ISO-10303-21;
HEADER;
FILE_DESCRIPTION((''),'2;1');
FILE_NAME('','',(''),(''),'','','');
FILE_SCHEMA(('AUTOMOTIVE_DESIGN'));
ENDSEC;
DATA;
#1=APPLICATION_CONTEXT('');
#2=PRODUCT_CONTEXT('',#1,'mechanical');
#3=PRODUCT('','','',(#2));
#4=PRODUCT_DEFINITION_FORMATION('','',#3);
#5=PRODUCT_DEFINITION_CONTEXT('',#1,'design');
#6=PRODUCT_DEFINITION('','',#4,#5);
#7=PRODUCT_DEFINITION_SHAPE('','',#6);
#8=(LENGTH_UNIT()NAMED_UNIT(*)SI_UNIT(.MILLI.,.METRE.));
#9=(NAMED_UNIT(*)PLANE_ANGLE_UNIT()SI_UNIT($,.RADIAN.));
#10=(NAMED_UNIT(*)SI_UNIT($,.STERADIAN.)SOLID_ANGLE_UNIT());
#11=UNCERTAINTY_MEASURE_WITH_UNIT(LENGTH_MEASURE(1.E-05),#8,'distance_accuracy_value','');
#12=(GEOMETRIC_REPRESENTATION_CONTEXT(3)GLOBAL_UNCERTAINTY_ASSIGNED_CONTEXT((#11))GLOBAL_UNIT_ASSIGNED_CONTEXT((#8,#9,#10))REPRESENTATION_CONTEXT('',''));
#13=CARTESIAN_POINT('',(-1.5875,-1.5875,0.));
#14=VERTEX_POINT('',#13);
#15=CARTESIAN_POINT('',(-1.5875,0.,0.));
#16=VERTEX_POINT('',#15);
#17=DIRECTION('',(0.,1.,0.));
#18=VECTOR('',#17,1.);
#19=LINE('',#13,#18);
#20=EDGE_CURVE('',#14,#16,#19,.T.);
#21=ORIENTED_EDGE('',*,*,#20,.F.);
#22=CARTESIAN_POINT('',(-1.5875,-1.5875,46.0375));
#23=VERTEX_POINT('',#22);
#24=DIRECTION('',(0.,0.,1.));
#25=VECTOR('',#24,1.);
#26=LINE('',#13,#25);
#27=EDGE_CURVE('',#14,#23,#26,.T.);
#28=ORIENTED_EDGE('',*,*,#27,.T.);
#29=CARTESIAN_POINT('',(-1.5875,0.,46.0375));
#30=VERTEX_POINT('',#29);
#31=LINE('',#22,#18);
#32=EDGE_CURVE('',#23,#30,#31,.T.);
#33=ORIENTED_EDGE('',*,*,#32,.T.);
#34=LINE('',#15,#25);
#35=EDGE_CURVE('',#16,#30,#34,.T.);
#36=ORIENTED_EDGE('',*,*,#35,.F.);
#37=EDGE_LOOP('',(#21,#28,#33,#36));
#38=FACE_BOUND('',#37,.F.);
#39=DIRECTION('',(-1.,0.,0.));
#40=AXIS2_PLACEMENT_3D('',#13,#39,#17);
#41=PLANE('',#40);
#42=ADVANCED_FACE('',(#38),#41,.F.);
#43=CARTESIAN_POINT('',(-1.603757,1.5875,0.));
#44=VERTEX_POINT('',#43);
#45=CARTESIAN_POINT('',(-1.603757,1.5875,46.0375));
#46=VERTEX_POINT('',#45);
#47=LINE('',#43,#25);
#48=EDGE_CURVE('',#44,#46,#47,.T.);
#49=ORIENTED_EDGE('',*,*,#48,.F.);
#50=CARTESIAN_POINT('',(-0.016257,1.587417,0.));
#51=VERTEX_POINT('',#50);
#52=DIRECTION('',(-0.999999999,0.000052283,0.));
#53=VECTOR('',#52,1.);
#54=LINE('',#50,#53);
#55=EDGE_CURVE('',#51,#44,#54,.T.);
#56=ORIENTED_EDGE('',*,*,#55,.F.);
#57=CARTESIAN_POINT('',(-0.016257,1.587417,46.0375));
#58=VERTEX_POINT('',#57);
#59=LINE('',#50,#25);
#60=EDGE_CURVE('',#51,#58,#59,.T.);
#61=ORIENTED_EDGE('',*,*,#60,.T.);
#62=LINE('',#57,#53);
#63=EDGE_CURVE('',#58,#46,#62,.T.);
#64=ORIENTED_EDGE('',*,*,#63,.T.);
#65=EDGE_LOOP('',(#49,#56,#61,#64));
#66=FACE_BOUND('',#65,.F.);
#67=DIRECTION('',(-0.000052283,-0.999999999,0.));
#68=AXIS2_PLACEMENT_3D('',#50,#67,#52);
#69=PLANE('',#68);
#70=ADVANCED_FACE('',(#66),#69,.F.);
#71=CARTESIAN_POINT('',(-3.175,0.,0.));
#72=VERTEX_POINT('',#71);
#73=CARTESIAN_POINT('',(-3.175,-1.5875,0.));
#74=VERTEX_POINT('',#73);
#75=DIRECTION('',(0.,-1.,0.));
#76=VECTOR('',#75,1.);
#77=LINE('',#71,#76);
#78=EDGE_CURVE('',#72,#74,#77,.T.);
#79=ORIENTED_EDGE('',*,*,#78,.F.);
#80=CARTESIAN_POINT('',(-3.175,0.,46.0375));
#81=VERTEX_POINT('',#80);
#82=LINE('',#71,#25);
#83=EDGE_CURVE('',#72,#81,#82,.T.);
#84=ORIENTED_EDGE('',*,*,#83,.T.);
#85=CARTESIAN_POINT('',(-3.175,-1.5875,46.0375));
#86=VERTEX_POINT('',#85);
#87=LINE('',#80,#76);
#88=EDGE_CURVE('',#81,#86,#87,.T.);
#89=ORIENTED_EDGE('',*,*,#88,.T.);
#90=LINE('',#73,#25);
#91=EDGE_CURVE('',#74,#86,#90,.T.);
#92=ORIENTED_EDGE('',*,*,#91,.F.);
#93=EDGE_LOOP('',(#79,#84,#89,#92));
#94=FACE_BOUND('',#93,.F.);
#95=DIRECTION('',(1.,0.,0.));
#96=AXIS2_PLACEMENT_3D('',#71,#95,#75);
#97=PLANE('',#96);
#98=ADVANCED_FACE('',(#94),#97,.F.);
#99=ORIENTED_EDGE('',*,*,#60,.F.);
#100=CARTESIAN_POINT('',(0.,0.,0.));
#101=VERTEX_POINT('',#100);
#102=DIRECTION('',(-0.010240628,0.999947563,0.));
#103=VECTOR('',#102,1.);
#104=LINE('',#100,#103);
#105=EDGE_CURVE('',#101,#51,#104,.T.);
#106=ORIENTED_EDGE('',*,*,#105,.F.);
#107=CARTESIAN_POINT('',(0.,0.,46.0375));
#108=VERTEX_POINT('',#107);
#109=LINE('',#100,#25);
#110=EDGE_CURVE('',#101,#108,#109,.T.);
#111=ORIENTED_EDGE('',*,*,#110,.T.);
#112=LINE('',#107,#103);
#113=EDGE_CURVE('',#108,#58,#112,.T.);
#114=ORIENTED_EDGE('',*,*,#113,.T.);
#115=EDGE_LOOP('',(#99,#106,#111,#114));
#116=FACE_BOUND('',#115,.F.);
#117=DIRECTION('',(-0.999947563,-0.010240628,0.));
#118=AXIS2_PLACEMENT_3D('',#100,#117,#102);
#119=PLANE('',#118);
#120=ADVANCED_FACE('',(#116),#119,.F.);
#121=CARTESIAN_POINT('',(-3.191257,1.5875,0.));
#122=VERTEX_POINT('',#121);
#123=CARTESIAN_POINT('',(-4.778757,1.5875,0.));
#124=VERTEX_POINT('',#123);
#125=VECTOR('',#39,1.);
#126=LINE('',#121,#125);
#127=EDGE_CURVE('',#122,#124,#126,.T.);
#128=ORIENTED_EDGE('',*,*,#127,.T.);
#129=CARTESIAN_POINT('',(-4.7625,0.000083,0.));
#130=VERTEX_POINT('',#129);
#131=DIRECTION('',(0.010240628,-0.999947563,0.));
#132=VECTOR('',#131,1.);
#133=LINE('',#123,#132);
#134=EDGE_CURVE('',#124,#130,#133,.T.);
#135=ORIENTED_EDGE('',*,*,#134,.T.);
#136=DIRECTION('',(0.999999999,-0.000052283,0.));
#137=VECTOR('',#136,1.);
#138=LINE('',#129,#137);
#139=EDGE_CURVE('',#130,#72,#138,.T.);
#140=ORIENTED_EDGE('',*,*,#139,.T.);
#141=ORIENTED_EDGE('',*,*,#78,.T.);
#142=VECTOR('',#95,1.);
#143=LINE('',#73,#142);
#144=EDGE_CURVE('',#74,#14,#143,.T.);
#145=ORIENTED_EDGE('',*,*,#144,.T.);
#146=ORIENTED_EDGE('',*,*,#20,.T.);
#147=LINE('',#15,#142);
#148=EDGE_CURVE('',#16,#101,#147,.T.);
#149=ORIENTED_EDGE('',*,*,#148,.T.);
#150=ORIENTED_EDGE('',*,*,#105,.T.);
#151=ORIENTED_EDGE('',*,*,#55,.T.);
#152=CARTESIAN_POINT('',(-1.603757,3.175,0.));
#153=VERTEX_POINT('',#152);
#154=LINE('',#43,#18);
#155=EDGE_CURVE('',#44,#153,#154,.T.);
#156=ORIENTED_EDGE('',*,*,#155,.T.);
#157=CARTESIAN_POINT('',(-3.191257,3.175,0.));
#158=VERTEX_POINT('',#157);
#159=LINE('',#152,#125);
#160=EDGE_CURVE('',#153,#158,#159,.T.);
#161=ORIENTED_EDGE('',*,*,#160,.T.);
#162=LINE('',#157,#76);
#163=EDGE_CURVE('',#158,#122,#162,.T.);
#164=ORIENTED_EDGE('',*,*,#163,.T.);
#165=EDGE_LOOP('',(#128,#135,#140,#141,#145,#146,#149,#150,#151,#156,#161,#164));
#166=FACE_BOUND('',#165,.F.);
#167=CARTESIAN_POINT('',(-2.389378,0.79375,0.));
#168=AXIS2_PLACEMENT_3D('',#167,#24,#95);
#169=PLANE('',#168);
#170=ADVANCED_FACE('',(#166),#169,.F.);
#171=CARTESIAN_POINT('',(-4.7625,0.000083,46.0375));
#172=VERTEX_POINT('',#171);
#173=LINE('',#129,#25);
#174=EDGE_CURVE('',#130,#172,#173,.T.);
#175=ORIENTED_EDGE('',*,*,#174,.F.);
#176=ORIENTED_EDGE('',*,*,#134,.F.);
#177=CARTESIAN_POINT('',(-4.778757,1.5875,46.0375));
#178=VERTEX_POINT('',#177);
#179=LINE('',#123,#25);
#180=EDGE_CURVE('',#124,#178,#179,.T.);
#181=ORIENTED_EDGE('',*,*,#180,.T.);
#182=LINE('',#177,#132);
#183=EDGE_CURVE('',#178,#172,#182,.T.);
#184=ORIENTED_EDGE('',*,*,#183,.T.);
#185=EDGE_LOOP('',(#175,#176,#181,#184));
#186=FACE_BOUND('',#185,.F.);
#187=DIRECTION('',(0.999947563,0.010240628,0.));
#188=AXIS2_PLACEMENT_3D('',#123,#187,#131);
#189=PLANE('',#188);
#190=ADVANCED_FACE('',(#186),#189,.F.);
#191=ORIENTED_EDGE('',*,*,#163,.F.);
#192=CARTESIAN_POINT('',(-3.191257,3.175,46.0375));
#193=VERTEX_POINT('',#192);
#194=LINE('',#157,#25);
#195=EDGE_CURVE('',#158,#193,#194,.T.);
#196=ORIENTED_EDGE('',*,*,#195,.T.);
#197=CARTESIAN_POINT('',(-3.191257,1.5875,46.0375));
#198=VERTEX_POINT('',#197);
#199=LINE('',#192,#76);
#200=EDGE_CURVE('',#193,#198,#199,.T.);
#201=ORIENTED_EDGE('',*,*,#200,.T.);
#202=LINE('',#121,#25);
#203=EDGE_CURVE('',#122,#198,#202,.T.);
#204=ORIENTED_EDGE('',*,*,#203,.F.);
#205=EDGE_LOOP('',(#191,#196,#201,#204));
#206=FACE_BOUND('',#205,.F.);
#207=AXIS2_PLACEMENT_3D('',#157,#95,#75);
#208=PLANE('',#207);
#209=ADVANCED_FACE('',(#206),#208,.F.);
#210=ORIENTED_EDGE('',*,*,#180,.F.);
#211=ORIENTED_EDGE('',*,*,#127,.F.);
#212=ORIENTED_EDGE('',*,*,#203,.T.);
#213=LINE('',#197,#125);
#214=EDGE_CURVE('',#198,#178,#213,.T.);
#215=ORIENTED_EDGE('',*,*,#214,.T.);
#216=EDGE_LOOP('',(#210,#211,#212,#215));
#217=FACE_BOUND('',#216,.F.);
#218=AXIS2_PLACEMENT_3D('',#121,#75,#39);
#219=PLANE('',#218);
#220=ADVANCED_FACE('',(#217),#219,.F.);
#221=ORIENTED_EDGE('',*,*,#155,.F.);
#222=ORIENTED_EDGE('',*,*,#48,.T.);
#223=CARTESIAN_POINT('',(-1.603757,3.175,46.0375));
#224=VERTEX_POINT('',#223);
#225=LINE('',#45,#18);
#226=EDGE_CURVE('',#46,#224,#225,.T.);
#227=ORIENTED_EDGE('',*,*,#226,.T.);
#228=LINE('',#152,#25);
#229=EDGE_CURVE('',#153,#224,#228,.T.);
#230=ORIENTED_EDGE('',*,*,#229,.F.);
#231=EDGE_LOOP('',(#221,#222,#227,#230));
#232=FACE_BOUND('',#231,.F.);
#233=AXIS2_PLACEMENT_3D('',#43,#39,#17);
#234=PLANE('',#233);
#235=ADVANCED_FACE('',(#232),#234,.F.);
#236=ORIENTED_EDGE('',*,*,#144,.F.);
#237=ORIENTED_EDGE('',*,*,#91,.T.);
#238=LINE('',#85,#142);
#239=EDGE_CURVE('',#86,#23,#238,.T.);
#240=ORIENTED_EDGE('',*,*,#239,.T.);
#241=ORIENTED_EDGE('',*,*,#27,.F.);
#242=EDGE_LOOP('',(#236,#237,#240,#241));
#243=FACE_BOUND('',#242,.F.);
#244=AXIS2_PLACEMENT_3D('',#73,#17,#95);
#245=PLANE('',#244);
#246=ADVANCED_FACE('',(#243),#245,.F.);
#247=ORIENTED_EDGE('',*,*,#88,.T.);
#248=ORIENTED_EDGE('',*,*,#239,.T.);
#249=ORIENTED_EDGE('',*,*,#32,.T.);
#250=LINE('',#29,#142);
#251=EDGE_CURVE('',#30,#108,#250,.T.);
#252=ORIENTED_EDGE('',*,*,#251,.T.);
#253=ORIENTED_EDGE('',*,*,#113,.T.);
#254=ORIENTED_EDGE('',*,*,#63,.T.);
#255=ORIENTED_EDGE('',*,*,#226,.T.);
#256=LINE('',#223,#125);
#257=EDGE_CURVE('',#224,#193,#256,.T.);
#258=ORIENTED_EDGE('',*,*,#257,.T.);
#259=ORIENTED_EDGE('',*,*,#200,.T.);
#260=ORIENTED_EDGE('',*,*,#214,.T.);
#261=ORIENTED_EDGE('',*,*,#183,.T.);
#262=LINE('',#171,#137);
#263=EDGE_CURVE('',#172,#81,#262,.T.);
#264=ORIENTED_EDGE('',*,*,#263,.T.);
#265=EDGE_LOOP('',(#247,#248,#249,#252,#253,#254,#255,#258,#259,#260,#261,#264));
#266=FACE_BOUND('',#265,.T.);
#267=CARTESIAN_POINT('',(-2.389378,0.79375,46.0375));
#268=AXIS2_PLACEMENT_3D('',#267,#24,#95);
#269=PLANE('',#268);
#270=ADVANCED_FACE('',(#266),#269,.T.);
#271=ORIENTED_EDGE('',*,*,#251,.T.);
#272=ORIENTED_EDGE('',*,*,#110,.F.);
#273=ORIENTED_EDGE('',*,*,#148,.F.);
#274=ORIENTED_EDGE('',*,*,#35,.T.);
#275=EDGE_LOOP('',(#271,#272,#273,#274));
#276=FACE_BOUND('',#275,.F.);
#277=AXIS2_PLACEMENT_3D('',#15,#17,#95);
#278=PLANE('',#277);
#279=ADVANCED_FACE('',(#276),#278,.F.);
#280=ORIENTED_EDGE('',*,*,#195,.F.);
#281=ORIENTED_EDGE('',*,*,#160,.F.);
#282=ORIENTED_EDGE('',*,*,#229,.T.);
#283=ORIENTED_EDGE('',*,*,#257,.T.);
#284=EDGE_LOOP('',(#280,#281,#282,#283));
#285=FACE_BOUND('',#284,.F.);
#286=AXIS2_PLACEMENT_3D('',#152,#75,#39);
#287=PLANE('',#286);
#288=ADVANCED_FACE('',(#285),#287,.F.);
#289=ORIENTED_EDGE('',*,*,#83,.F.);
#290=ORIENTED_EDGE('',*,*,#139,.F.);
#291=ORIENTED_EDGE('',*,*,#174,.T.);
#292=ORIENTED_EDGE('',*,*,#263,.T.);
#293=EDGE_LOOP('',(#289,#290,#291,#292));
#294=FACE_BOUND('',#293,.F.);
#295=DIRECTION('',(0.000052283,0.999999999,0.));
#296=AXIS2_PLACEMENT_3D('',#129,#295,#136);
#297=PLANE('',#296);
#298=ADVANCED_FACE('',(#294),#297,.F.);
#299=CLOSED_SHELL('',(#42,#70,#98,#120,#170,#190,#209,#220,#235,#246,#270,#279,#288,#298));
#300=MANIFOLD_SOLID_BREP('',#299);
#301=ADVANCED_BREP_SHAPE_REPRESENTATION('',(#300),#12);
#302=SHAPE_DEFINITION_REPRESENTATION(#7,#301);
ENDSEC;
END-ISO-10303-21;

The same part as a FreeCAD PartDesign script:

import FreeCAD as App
import Part
import Sketcher
Q = App.Units.Quantity

doc = App.newDocument("Part")
params = doc.addObject("Spreadsheet::Sheet", "Params")
for row, (alias, value) in enumerate([
    ("sketch1_width", "0.0625 in"),
    ("sketch1_length", "0.0625 in"),
    ("pad1_length", "1.8125 in"),
], start=1):
    params.set(f"A{row}", alias)
    params.set(f"B{row}", "=" + value)
    params.setAlias(f"B{row}", alias)

body = doc.addObject("PartDesign::Body", "Body")

sketch1 = body.newObject("Sketcher::SketchObject", "Sketch")
sketch1.AttachmentSupport = (doc.getObject("XY_Plane"), [""])
sketch1.MapMode = "FlatFace"
sketch1.addGeometry([
    Part.LineSegment(App.Vector(-1.6, 0, 0), App.Vector(0, 0, 0)),
    Part.LineSegment(App.Vector(0, 0, 0), App.Vector(0, 1.6, 0)),
    Part.LineSegment(App.Vector(0, 1.6, 0), App.Vector(-1.6, 1.6, 0)),
    Part.LineSegment(App.Vector(-1.6, 1.6, 0), App.Vector(-1.6, 3.2, 0)),
    Part.LineSegment(App.Vector(-1.6, 3.2, 0), App.Vector(-3.2, 3.2, 0)),
    Part.LineSegment(App.Vector(-3.2, 3.2, 0), App.Vector(-3.2, 1.6, 0)),
    Part.LineSegment(App.Vector(-3.2, 1.6, 0), App.Vector(-4.8, 1.6, 0)),
    Part.LineSegment(App.Vector(-4.8, 1.6, 0), App.Vector(-4.8, 0, 0)),
    Part.LineSegment(App.Vector(-4.8, 0, 0), App.Vector(-3.2, 0, 0)),
    Part.LineSegment(App.Vector(-3.2, 0, 0), App.Vector(-3.2, -1.6, 0)),
    Part.LineSegment(App.Vector(-3.2, -1.6, 0), App.Vector(-1.6, -1.6, 0)),
    Part.LineSegment(App.Vector(-1.6, -1.6, 0), App.Vector(-1.6, 0, 0)),
], False)
sketch1.addConstraint([
    Sketcher.Constraint("Coincident", 0, 2, 1, 1),
    Sketcher.Constraint("Coincident", 1, 2, 2, 1),
    Sketcher.Constraint("Coincident", 2, 2, 3, 1),
    Sketcher.Constraint("Coincident", 3, 2, 4, 1),
    Sketcher.Constraint("Coincident", 4, 2, 5, 1),
    Sketcher.Constraint("Coincident", 5, 2, 6, 1),
    Sketcher.Constraint("Coincident", 6, 2, 7, 1),
    Sketcher.Constraint("Coincident", 7, 2, 8, 1),
    Sketcher.Constraint("Coincident", 8, 2, 9, 1),
    Sketcher.Constraint("Coincident", 9, 2, 10, 1),
    Sketcher.Constraint("Coincident", 10, 2, 11, 1),
    Sketcher.Constraint("Coincident", 11, 2, 0, 1),
    Sketcher.Constraint("Horizontal", 0),
    Sketcher.Constraint("Vertical", 3),
    Sketcher.Constraint("Horizontal", 4),
    Sketcher.Constraint("Vertical", 5),
    Sketcher.Constraint("Horizontal", 6),
    Sketcher.Constraint("Vertical", 9),
    Sketcher.Constraint("Horizontal", 10),
    Sketcher.Constraint("Vertical", 11),
    Sketcher.Constraint("Coincident", 0, 2, -1, 1),
    Sketcher.Constraint("PointOnObject", 8, 2, -1),
    Sketcher.Constraint("Parallel", 1, 7),
    Sketcher.Constraint("Parallel", 2, 8),
    Sketcher.Constraint("Horizontal", 2, 2, 5, 2),
    Sketcher.Constraint("Equal", 0, 4),
    Sketcher.Constraint("Equal", 4, 6),
    Sketcher.Constraint("Equal", 6, 10),
    Sketcher.Constraint("Equal", 10, 3),
    Sketcher.Constraint("Equal", 5, 9),
    Sketcher.Constraint("Equal", 1, 2),
    Sketcher.Constraint("DistanceX", 0, 1, 0, 2, Q("0.0625 in")),
    Sketcher.Constraint("Distance", 1, Q("0.0625 in")),
    Sketcher.Constraint("DistanceY", -1, 1, 2, 2, Q("0.0625 in")),
    Sketcher.Constraint("DistanceX", 1, 2, -1, 1, 0.016257),
])
sketch1.setExpression("Constraints[31]", "Params.sketch1_width")
sketch1.setExpression("Constraints[32]", "Params.sketch1_length")
pad1 = body.newObject("PartDesign::Pad", "Pad")
pad1.Profile = sketch1
pad1.setExpression("Length", "Params.pad1_length")

doc.recompute()
